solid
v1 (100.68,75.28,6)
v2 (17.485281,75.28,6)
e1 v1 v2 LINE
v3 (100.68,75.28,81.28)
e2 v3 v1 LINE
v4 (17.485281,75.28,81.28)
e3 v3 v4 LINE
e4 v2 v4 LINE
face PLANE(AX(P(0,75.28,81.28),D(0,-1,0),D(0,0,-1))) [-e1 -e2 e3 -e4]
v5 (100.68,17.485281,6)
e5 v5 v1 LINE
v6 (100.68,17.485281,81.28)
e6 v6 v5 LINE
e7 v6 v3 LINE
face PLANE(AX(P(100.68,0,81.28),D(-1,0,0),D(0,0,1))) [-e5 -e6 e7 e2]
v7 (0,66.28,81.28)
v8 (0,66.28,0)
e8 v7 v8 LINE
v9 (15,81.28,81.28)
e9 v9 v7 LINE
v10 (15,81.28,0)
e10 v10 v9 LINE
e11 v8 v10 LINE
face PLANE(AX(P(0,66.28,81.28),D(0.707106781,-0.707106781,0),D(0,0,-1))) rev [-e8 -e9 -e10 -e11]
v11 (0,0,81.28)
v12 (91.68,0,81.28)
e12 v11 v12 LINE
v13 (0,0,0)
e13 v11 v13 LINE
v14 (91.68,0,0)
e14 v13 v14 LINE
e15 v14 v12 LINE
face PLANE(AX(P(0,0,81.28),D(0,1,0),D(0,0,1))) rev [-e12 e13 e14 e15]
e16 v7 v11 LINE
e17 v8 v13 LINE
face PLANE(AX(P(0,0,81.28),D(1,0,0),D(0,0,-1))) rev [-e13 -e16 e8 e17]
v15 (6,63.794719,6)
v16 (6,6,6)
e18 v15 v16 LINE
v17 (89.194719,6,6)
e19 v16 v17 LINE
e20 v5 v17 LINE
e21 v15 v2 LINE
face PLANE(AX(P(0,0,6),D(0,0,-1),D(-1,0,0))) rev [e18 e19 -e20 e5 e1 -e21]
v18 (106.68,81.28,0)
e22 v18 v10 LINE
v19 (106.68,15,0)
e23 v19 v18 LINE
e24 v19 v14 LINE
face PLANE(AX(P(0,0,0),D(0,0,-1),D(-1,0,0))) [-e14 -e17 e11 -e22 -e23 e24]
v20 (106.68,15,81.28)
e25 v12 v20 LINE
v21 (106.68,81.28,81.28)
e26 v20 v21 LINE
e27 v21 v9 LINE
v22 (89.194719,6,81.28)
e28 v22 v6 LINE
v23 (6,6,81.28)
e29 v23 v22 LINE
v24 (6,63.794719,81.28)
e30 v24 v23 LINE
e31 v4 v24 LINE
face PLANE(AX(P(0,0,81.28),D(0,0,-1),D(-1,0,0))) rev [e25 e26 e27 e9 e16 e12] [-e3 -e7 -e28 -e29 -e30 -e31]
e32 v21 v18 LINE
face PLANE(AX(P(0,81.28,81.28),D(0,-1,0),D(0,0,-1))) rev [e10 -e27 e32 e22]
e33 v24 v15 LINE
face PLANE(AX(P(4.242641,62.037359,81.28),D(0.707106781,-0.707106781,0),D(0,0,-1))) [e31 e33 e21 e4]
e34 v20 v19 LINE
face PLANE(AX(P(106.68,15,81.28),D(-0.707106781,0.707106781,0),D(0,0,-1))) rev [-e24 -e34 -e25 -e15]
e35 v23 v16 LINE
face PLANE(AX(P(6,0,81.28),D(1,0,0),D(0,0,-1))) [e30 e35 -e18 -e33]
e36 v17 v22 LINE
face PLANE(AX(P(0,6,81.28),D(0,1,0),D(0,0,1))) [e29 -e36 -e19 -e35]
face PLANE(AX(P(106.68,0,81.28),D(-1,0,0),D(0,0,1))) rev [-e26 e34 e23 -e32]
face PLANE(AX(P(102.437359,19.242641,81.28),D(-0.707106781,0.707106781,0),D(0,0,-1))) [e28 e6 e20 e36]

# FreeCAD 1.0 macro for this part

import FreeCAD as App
import Part
import Sketcher

V = App.Vector


def edges_at(feature, points):
    """Names of the edges that pass closest to the given points."""
    edges = feature.Shape.Edges
    near = lambda p: min(range(len(edges)), key=lambda i: edges[i].distToShape(Part.Vertex(*p))[0])
    return sorted({f"Edge{near(p) + 1}" for p in points})


def faces_at(feature, points):
    """Names of the faces that lie closest to the given points."""
    faces = feature.Shape.Faces
    near = lambda p: min(range(len(faces)), key=lambda i: faces[i].distToShape(Part.Vertex(*p))[0])
    return sorted({f"Face{near(p) + 1}" for p in points})

doc = App.newDocument("Part")
params = doc.addObject("Spreadsheet::Sheet", "Params")
for row, (alias, value) in enumerate([
    ("sketch1_width", "106.68 mm"),
    ("sketch1_height", "81.28 mm"),
    ("pad1_length", "81.28 mm"),
    ("chamfer_size", "15 mm"),
    ("thickness_wall", "6 mm"),
], start=1):
    params.set(f"A{row}", alias)
    params.set(f"B{row}", "=" + value)
    params.setAlias(f"B{row}", alias)

body = doc.addObject("PartDesign::Body", "Body")

# Sketch on XY plane
sketch1 = body.newObject("Sketcher::SketchObject", "Sketch")
sketch1.AttachmentSupport = (doc.getObject("XY_Plane"), [""])
sketch1.MapMode = "FlatFace"
sketch1.addGeometry([
    Part.LineSegment(V(0, 81, 0), V(0, 0, 0)),
    Part.LineSegment(V(0, 0, 0), V(107, 0, 0)),
    Part.LineSegment(V(107, 0, 0), V(107, 81, 0)),
    Part.LineSegment(V(107, 81, 0), V(0, 81, 0)),
], False)
sketch1.addConstraint([
    Sketcher.Constraint("Coincident", 0, 2, 1, 1),
    Sketcher.Constraint("Coincident", 1, 2, 2, 1),
    Sketcher.Constraint("Coincident", 2, 2, 3, 1),
    Sketcher.Constraint("Coincident", 3, 2, 0, 1),
    Sketcher.Constraint("Vertical", 0),
    Sketcher.Constraint("Horizontal", 1),
    Sketcher.Constraint("Vertical", 2),
    Sketcher.Constraint("Horizontal", 3),
    Sketcher.Constraint("Coincident", 0, 2, -1, 1),
    Sketcher.Constraint("DistanceX", 1, 1, 1, 2, 106.68),
    Sketcher.Constraint("DistanceY", 0, 2, 0, 1, 81.28),
])
sketch1.setExpression("Constraints[9]", "Params.sketch1_width")
sketch1.setExpression("Constraints[10]", "Params.sketch1_height")
pad1 = body.newObject("PartDesign::Pad", "Pad")
pad1.Profile = sketch1
pad1.setExpression("Length", "Params.pad1_length")
doc.recompute()

chamfer = body.newObject("PartDesign::Chamfer", "Chamfer")
chamfer.Base = (pad1, edges_at(pad1, [(0, 81.28, 40.64), (106.68, 0, 40.64)]))
chamfer.setExpression("Size", "Params.chamfer_size")
doc.recompute()

thickness = body.newObject("PartDesign::Thickness", "Thickness")
thickness.Base = (chamfer, faces_at(chamfer, [(53.34, 40.64, 81.28)]))
thickness.setExpression("Value", "Params.thickness_wall")
thickness.Reversed = True
thickness.Join = "Intersection"

doc.recompute()
